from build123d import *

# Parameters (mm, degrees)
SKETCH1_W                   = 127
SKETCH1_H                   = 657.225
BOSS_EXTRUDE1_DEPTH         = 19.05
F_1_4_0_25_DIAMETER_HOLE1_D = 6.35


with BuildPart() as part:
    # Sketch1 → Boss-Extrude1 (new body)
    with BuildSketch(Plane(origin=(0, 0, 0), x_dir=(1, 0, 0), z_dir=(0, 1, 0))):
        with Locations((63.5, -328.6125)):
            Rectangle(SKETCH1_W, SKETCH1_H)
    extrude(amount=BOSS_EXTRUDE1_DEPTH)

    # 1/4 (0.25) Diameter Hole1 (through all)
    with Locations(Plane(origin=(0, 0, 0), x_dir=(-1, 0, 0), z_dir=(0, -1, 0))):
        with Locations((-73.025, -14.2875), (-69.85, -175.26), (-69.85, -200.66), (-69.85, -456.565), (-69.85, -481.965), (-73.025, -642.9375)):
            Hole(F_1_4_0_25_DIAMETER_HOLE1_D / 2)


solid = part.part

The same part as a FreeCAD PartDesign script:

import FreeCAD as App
import Part
import Sketcher
Q = App.Units.Quantity

doc = App.newDocument("Part")
params = doc.addObject("Spreadsheet::Sheet", "Params")
for row, (alias, value) in enumerate([
    ("sketch1_width", "5 in"),
    ("sketch1_height", "25.875 in"),
    ("pad1_length", "0.75 in"),
    ("sketch2_diameter", "0.25 in"),
    ("hole_diameter", "0.25 in"),
], start=1):
    params.set(f"A{row}", alias)
    params.set(f"B{row}", "=" + value)
    params.setAlias(f"B{row}", alias)

body = doc.addObject("PartDesign::Body", "Body")

sketch1 = body.newObject("Sketcher::SketchObject", "Sketch")
sketch1.AttachmentSupport = (doc.getObject("XZ_Plane"), [""])
sketch1.MapMode = "FlatFace"
sketch1.addGeometry([
    Part.LineSegment(App.Vector(0, 0, 0), App.Vector(0, 657, 0)),
    Part.LineSegment(App.Vector(0, 657, 0), App.Vector(127, 657, 0)),
    Part.LineSegment(App.Vector(127, 657, 0), App.Vector(127, 0, 0)),
    Part.LineSegment(App.Vector(127, 0, 0), App.Vector(0, 0, 0)),
], False)
sketch1.addConstraint([
    Sketcher.Constraint("Coincident", 0, 2, 1, 1),
    Sketcher.Constraint("Coincident", 1, 2, 2, 1),
    Sketcher.Constraint("Coincident", 2, 2, 3, 1),
    Sketcher.Constraint("Coincident", 3, 2, 0, 1),
    Sketcher.Constraint("Vertical", 0),
    Sketcher.Constraint("Horizontal", 1),
    Sketcher.Constraint("Vertical", 2),
    Sketcher.Constraint("Horizontal", 3),
    Sketcher.Constraint("Coincident", 3, 2, -1, 1),
    Sketcher.Constraint("DistanceX", 1, 1, 1, 2, Q("5 in")),
    Sketcher.Constraint("DistanceY", 0, 1, 0, 2, Q("25.875 in")),
])
sketch1.setExpression("Constraints[9]", "Params.sketch1_width")
sketch1.setExpression("Constraints[10]", "Params.sketch1_height")
pad1 = body.newObject("PartDesign::Pad", "Pad")
pad1.Profile = sketch1
pad1.setExpression("Length", "Params.pad1_length")
pad1.Reversed = True

sketch2 = body.newObject("Sketcher::SketchObject", "Sketch001")
sketch2.AttachmentSupport = (doc.getObject("XZ_Plane"), [""])
sketch2.MapMode = "FlatFace"
sketch2.addGeometry([
    Part.Circle(App.Vector(73, 14.3, 0), App.Vector(0, 0, 1), 3.2),
    Part.Circle(App.Vector(69.8, 175.3, 0), App.Vector(0, 0, 1), 3.2),
    Part.Circle(App.Vector(69.8, 200.7, 0), App.Vector(0, 0, 1), 3.2),
    Part.Circle(App.Vector(69.8, 456.6, 0), App.Vector(0, 0, 1), 3.2),
    Part.Circle(App.Vector(69.8, 482, 0), App.Vector(0, 0, 1), 3.2),
    Part.Circle(App.Vector(73, 642.9, 0), App.Vector(0, 0, 1), 3.2),
], False)
sketch2.addConstraint([
    Sketcher.Constraint("Equal", 0, 1),
    Sketcher.Constraint("Equal", 1, 2),
    Sketcher.Constraint("Equal", 2, 3),
    Sketcher.Constraint("Equal", 3, 4),
    Sketcher.Constraint("Equal", 4, 5),
    Sketcher.Constraint("Vertical", 1, 3, 2, 3),
    Sketcher.Constraint("Vertical", 2, 3, 3, 3),
    Sketcher.Constraint("Vertical", 3, 3, 4, 3),
    Sketcher.Constraint("Vertical", 0, 3, 5, 3),
    Sketcher.Constraint("Diameter", 0, Q("0.25 in")),
    Sketcher.Constraint("DistanceY", 1, 3, 2, 3, Q("1 in")),
    Sketcher.Constraint("DistanceY", 3, 3, 4, 3, Q("1 in")),
    Sketcher.Constraint("DistanceY", -1, 1, 1, 3, Q("6.9 in")),
    Sketcher.Constraint("DistanceX", -1, 1, 1, 3, Q("2.75 in")),
    Sketcher.Constraint("DistanceY", 0, 3, 5, 3, Q("24.75 in")),
    Sketcher.Constraint("DistanceX", -1, 1, 0, 3, Q("2.875 in")),
    Sketcher.Constraint("DistanceY", -1, 1, 0, 3, Q("0.5625 in")),
    Sketcher.Constraint("DistanceY", -1, 1, 3, 3, Q("17.975 in")),
])
sketch2.setExpression("Constraints[9]", "Params.sketch2_diameter")
doc.recompute()
hole = body.newObject("PartDesign::Hole", "Hole")
hole.Profile = sketch2
hole.ThreadType = "None"
hole.setExpression("Diameter", "Params.hole_diameter")
hole.DepthType = "ThroughAll"

doc.recompute()
